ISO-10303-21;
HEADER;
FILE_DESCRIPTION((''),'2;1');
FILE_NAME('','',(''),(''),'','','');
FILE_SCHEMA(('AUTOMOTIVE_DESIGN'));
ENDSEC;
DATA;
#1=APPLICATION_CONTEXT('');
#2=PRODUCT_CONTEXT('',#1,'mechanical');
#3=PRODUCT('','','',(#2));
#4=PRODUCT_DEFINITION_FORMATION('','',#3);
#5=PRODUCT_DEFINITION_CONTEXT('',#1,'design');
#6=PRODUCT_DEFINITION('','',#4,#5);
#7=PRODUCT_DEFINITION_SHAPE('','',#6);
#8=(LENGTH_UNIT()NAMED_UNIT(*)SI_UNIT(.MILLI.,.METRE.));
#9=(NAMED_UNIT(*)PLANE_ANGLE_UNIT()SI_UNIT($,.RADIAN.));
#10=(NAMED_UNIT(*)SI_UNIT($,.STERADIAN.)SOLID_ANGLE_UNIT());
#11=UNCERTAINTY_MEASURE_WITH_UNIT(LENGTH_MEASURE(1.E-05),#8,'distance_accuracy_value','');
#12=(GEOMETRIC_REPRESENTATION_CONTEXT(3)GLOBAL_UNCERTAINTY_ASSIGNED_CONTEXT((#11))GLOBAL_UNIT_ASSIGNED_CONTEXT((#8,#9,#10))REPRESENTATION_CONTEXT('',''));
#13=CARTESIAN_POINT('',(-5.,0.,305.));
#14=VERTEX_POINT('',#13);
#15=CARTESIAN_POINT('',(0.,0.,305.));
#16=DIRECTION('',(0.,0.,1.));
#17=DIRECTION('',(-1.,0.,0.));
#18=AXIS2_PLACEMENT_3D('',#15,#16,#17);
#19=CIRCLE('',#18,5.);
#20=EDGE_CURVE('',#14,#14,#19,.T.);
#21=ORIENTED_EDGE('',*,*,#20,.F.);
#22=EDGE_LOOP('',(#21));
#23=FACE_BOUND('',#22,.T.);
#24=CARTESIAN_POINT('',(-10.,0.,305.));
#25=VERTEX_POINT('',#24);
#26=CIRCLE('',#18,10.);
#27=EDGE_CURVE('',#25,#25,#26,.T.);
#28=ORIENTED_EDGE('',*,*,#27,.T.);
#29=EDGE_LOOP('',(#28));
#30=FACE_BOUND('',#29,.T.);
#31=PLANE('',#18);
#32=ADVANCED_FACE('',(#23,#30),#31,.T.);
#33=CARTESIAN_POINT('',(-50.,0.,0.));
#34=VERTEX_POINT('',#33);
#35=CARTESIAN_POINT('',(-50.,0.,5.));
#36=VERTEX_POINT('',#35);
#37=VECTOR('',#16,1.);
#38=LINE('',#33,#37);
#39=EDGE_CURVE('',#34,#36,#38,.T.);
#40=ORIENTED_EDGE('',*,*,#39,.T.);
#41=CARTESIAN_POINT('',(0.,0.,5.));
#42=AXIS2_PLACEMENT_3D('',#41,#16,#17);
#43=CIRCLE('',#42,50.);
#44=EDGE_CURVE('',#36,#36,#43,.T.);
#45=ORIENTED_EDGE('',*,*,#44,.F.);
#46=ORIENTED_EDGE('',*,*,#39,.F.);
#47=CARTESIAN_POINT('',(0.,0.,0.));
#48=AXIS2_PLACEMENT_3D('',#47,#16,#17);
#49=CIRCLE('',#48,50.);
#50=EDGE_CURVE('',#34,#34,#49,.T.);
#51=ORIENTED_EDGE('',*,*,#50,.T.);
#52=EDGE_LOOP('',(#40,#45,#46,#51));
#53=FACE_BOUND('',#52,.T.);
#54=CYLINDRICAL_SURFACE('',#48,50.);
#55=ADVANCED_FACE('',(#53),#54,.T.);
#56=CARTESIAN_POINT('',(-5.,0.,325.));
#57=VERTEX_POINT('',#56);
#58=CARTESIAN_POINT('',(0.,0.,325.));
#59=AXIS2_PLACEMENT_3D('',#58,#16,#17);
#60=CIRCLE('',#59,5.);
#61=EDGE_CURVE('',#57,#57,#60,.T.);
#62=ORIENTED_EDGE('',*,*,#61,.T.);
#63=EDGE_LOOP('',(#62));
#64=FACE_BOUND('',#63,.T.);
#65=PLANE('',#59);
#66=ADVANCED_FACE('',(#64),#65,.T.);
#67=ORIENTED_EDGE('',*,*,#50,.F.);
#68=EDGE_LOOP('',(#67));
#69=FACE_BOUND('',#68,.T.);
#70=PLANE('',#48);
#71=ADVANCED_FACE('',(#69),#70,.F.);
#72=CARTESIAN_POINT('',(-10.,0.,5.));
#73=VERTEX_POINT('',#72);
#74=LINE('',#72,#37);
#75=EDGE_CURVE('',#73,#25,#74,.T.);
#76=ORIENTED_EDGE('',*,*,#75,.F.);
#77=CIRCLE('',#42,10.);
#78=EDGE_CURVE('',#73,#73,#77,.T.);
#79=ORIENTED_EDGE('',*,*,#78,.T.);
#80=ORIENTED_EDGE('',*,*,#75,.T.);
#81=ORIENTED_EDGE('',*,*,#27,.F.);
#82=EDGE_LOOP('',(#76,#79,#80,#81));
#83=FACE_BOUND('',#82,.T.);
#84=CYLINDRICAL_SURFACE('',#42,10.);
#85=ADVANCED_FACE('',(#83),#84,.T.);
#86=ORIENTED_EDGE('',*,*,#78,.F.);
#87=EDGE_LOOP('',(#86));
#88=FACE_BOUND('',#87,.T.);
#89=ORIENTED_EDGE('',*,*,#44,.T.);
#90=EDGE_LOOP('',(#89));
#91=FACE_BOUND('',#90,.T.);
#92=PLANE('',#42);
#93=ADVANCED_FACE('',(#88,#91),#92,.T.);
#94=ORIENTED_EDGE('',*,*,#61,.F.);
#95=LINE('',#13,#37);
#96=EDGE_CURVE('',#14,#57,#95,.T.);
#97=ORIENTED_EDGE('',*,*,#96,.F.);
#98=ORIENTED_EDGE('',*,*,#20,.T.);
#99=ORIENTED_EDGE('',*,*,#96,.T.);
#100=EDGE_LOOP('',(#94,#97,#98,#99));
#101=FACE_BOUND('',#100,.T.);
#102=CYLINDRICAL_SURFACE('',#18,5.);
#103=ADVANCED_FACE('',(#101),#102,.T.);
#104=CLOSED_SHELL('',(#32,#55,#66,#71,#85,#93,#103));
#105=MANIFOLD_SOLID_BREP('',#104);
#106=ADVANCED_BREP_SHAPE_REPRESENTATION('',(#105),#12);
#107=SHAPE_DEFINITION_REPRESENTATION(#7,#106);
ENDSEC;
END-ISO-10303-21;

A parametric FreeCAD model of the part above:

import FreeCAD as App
import Part
import Sketcher
from FreeCAD import Vector
Q = App.Units.Quantity

doc = App.newDocument("Part")
params = doc.addObject("Spreadsheet::Sheet", "Params")
for row, (alias, value) in enumerate([
    ("sketch1_width", "50 mm"),
    ("sketch1_width2", "5 mm"),
    ("sketch1_height", "325 mm"),
    ("sketch1_height2", "20 mm"),
    ("revolution_angle", "360 deg"),
], start=1):
    params.set(f"A{row}", alias)
    params.set(f"B{row}", "=" + value)
    params.setAlias(f"B{row}", alias)

body = doc.addObject("PartDesign::Body", "Body")

sketch1 = body.newObject("Sketcher::SketchObject", "Sketch")
sketch1.AttachmentSupport = (doc.getObject("XZ_Plane"), [""])
sketch1.MapMode = "FlatFace"
sketch1.addGeometry(Part.LineSegment(Vector(-50, 0, 0), Vector(0, 0, 0)), False)
sketch1.addGeometry(Part.LineSegment(Vector(0, 0, 0), Vector(0, 325, 0)), False)
sketch1.addGeometry(Part.LineSegment(Vector(0, 325, 0), Vector(-5, 325, 0)), False)
sketch1.addGeometry(Part.LineSegment(Vector(-5, 325, 0), Vector(-5, 305, 0)), False)
sketch1.addGeometry(Part.LineSegment(Vector(-5, 305, 0), Vector(-10, 305, 0)), False)
sketch1.addGeometry(Part.LineSegment(Vector(-10, 305, 0), Vector(-10, 5, 0)), False)
sketch1.addGeometry(Part.LineSegment(Vector(-10, 5, 0), Vector(-50, 5, 0)), False)
sketch1.addGeometry(Part.LineSegment(Vector(-50, 5, 0), Vector(-50, 0, 0)), False)
sketch1.addConstraint(Sketcher.Constraint("Coincident", 0, 2, 1, 1))
sketch1.addConstraint(Sketcher.Constraint("Coincident", 1, 2, 2, 1))
sketch1.addConstraint(Sketcher.Constraint("Coincident", 2, 2, 3, 1))
sketch1.addConstraint(Sketcher.Constraint("Coincident", 3, 2, 4, 1))
sketch1.addConstraint(Sketcher.Constraint("Coincident", 4, 2, 5, 1))
sketch1.addConstraint(Sketcher.Constraint("Coincident", 5, 2, 6, 1))
sketch1.addConstraint(Sketcher.Constraint("Coincident", 6, 2, 7, 1))
sketch1.addConstraint(Sketcher.Constraint("Coincident", 7, 2, 0, 1))
sketch1.addConstraint(Sketcher.Constraint("Horizontal", 0))
sketch1.addConstraint(Sketcher.Constraint("Vertical", 1))
sketch1.addConstraint(Sketcher.Constraint("Horizontal", 2))
sketch1.addConstraint(Sketcher.Constraint("Vertical", 3))
sketch1.addConstraint(Sketcher.Constraint("Horizontal", 4))
sketch1.addConstraint(Sketcher.Constraint("Vertical", 5))
sketch1.addConstraint(Sketcher.Constraint("Horizontal", 6))
sketch1.addConstraint(Sketcher.Constraint("Vertical", 7))
sketch1.addConstraint(Sketcher.Constraint("Coincident", 0, 2, -1, 1))
sketch1.addConstraint(Sketcher.Constraint("Equal", 2, 4))
sketch1.addConstraint(Sketcher.Constraint("Equal", 4, 7))
sketch1.addConstraint(Sketcher.Constraint("DistanceX", 0, 1, 0, 2, Q("50 mm")))
sketch1.addConstraint(Sketcher.Constraint("DistanceX", 2, 2, 2, 1, Q("5 mm")))
sketch1.addConstraint(Sketcher.Constraint("DistanceY", 1, 1, 1, 2, Q("325 mm")))
sketch1.addConstraint(Sketcher.Constraint("DistanceY", 3, 2, 3, 1, Q("20 mm")))
sketch1.setExpression("Constraints[19]", "Params.sketch1_width")
sketch1.setExpression("Constraints[20]", "Params.sketch1_width2")
sketch1.setExpression("Constraints[21]", "Params.sketch1_height")
sketch1.setExpression("Constraints[22]", "Params.sketch1_height2")
revolution = body.newObject("PartDesign::Revolution", "Revolution")
revolution.Profile = sketch1
revolution.ReferenceAxis = (sketch1, ["V_Axis"])
revolution.setExpression("Angle", "Params.revolution_angle")

doc.recompute()
